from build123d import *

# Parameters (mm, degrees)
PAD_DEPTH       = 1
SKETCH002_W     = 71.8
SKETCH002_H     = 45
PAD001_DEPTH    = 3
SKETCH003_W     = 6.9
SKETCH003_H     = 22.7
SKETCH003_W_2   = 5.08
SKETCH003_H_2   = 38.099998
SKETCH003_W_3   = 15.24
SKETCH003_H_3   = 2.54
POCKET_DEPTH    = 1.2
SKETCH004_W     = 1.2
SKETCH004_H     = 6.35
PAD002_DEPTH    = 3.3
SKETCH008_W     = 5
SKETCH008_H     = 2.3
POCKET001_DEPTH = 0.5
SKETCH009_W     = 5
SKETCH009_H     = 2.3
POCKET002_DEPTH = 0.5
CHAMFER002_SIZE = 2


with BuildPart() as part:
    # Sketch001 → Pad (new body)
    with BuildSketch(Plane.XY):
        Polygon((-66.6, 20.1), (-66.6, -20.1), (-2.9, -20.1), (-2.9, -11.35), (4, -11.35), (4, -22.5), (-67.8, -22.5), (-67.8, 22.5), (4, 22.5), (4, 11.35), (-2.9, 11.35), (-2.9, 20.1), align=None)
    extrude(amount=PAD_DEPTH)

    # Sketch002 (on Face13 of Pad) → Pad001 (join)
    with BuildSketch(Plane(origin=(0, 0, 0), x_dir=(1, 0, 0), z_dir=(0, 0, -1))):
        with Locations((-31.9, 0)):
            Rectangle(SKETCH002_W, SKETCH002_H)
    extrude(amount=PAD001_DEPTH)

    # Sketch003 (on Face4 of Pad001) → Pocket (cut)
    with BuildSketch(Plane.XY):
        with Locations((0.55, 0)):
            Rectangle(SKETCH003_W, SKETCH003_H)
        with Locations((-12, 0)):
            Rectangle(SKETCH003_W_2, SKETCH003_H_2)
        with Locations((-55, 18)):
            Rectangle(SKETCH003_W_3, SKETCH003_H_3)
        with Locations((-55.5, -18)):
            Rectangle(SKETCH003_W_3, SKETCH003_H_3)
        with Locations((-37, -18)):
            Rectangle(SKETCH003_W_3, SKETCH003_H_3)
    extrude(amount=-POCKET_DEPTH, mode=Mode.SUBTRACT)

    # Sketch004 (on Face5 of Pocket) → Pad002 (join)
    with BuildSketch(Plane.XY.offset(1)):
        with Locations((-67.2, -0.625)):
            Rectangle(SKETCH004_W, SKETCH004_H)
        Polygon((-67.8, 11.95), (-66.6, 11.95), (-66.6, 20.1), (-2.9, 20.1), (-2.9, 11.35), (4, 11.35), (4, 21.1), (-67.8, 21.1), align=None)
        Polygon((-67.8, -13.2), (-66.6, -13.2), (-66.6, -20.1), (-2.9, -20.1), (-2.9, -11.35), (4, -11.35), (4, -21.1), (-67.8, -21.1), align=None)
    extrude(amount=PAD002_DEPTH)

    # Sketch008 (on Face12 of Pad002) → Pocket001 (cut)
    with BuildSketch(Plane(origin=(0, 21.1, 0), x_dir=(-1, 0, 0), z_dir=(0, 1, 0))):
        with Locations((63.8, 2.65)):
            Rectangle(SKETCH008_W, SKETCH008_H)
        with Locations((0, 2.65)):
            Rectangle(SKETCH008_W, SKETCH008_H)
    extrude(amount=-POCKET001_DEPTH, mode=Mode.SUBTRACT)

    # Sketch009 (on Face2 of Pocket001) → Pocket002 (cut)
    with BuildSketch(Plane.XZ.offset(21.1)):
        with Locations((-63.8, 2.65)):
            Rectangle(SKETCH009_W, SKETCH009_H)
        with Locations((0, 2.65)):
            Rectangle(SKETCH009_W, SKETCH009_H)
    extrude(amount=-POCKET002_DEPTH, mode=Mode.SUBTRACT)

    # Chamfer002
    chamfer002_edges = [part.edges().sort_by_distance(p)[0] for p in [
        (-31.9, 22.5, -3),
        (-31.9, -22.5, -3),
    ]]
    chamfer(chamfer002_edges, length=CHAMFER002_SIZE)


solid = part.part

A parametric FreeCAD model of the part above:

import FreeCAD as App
import Part
import Sketcher


def edges_at(feature, points):
    """Names of the edges that pass closest to the given points."""
    edges = feature.Shape.Edges
    near = lambda p: min(range(len(edges)), key=lambda i: edges[i].distToShape(Part.Vertex(*p))[0])
    return sorted({f"Edge{near(p) + 1}" for p in points})


def add_polygon(sketch, points):
    """Adds a closed chain of lines whose ends are joined by coincident constraints."""
    first, n = sketch.GeometryCount, len(points)
    for a, b in zip(points, points[1:] + points[:1]):
        sketch.addGeometry(Part.LineSegment(App.Vector(*a, 0), App.Vector(*b, 0)), False)
    for i in range(n):
        sketch.addConstraint(Sketcher.Constraint("Coincident", first + i, 2, first + (i + 1) % n, 1))

doc = App.newDocument("Part")
body = doc.addObject("PartDesign::Body", "Body")

# Sketch on XY plane
sketch1 = doc.addObject("Sketcher::SketchObject", "Sketch")
body.addObject(sketch1)
sketch1.AttachmentSupport = (doc.XY_Plane, [""])
sketch1.MapMode = "FlatFace"
add_polygon(sketch1, [(-66.6, -20.1), (-66.6, 20.1), (-2.9, 20.1), (-2.9, 11.35), (4, 11.35), (4, 22.5), (-67.8, 22.5), (-67.8, -22.5), (4, -22.5), (4, -11.35), (-2.9, -11.35), (-2.9, -20.1)])  # lines 0-11
sketch1.addConstraint([
    Sketcher.Constraint("Vertical", 0),
    Sketcher.Constraint("Horizontal", 1),
    Sketcher.Constraint("Vertical", 2),
    Sketcher.Constraint("Horizontal", 3),
    Sketcher.Constraint("Vertical", 4),
    Sketcher.Constraint("Horizontal", 5),
    Sketcher.Constraint("Vertical", 6),
    Sketcher.Constraint("Horizontal", 7),
    Sketcher.Constraint("Vertical", 8),
    Sketcher.Constraint("Horizontal", 9),
    Sketcher.Constraint("Vertical", 10),
    Sketcher.Constraint("Horizontal", 11),
    Sketcher.Constraint("Symmetric", 4, 2, 7, 2, -1),
    Sketcher.Constraint("Symmetric", 2, 2, 9, 2, -1),
    Sketcher.Constraint("Equal", 2, 10),
    Sketcher.Constraint("DistanceY", 6, 2, 6, 1, 45.0),
    Sketcher.Constraint("DistanceX", 1, 1, 1, 2, 63.7),
    Sketcher.Constraint("DistanceX", 3, 1, 3, 2, 6.9),
    Sketcher.Constraint("DistanceX", 5, 2, 5, 1, 71.8),
    Sketcher.Constraint("DistanceY", 0, 1, 0, 2, 40.2),
    Sketcher.Constraint("DistanceX", -1, 1, 3, 2, 4.0),
    Sketcher.Constraint("DistanceY", 2, 2, 2, 1, 8.75),
])
pad1 = doc.addObject("PartDesign::Pad", "Pad")
body.addObject(pad1)
pad1.Profile = sketch1
pad1.Length = 1

# Sketch on XY plane
sketch2 = doc.addObject("Sketcher::SketchObject", "Sketch001")
body.addObject(sketch2)
sketch2.AttachmentSupport = (doc.XY_Plane, [""])
sketch2.MapMode = "FlatFace"
add_polygon(sketch2, [(-67.8, -22.5), (-67.8, 22.5), (4, 22.5), (4, -22.5)])  # lines 0-3
sketch2.addConstraint([
    Sketcher.Constraint("Vertical", 0),
    Sketcher.Constraint("Horizontal", 1),
    Sketcher.Constraint("Vertical", 2),
    Sketcher.Constraint("Horizontal", 3),
    Sketcher.Constraint("DistanceY", 0, 1, 0, 2, 45.0),
    Sketcher.Constraint("DistanceX", 1, 1, 1, 2, 71.8),
    Sketcher.Constraint("DistanceX", -1, 1, 1, 2, 4.0),
    Sketcher.Constraint("DistanceY", -1, 1, 0, 2, 22.5),
])
pad2 = doc.addObject("PartDesign::Pad", "Pad001")
body.addObject(pad2)
pad2.Profile = sketch2
pad2.Length = 3
pad2.Reversed = True

# Sketch on XY plane
sketch3 = doc.addObject("Sketcher::SketchObject", "Sketch002")
body.addObject(sketch3)
sketch3.AttachmentSupport = (doc.XY_Plane, [""])
sketch3.MapMode = "FlatFace"
add_polygon(sketch3, [(-2.9, 11.35), (-2.9, -11.35), (4, -11.35), (4, 11.35)])  # lines 0-3
add_polygon(sketch3, [(-14.54, 19.049999), (-14.54, -19.049999), (-9.46, -19.049999), (-9.46, 19.049999)])  # lines 4-7
add_polygon(sketch3, [(-62.62, 19.27), (-62.62, 16.73), (-47.38, 16.73), (-47.38, 19.27)])  # lines 8-11
add_polygon(sketch3, [(-63.12, -16.73), (-63.12, -19.27), (-47.88, -19.27), (-47.88, -16.73)])  # lines 12-15
add_polygon(sketch3, [(-44.62, -16.73), (-44.62, -19.27), (-29.38, -19.27), (-29.38, -16.73)])  # lines 16-19
sketch3.addConstraint([
    Sketcher.Constraint("Vertical", 0),
    Sketcher.Constraint("Horizontal", 1),
    Sketcher.Constraint("Vertical", 2),
    Sketcher.Constraint("Horizontal", 3),
    Sketcher.Constraint("Vertical", 4),
    Sketcher.Constraint("Horizontal", 5),
    Sketcher.Constraint("Vertical", 6),
    Sketcher.Constraint("Horizontal", 7),
    Sketcher.Constraint("Vertical", 8),
    Sketcher.Constraint("Horizontal", 9),
    Sketcher.Constraint("Vertical", 10),
    Sketcher.Constraint("Horizontal", 11),
    Sketcher.Constraint("Vertical", 12),
    Sketcher.Constraint("Horizontal", 13),
    Sketcher.Constraint("Vertical", 14),
    Sketcher.Constraint("Horizontal", 15),
    Sketcher.Constraint("Vertical", 16),
    Sketcher.Constraint("Horizontal", 17),
    Sketcher.Constraint("Vertical", 18),
    Sketcher.Constraint("Horizontal", 19),
    Sketcher.Constraint("Horizontal", 13, 2, 16, 2),
    Sketcher.Constraint("Horizontal", 15, 2, 18, 2),
    Sketcher.Constraint("Equal", 11, 13),
    Sketcher.Constraint("Equal", 15, 17),
    Sketcher.Constraint("Equal", 10, 12),
    Sketcher.Constraint("DistanceX", 1, 1, 1, 2, 6.9),
    Sketcher.Constraint("DistanceY", 0, 2, 0, 1, 22.7),
    Sketcher.Constraint("DistanceX", -1, 1, 1, 2, 4.0),
    Sketcher.Constraint("DistanceY", 12, 2, 8, 2, 36.0),
    Sketcher.Constraint("DistanceX", 5, 1, 5, 2, 5.08),
    Sketcher.Constraint("DistanceX", 9, 1, 9, 2, 15.24),
    Sketcher.Constraint("DistanceY", 8, 2, 8, 1, 2.54),
    Sketcher.Constraint("DistanceY", 4, 2, 0, 2, 7.699999),
    Sketcher.Constraint("DistanceY", 3, 2, 6, 2, 7.699999),
    Sketcher.Constraint("DistanceX", 12, 2, 8, 2, 0.5),
    Sketcher.Constraint("DistanceX", 12, 2, 16, 2, 18.5),
    Sketcher.Constraint("DistanceY", 0, 2, -1, 1, 11.35),
    Sketcher.Constraint("DistanceX", 4, 2, -1, 1, 14.54),
    Sketcher.Constraint("DistanceX", 8, 2, -1, 1, 62.62),
    Sketcher.Constraint("DistanceY", -1, 1, 8, 2, 16.73),
])
pocket1 = doc.addObject("PartDesign::Pocket", "Pocket")
body.addObject(pocket1)
pocket1.Profile = sketch3
pocket1.Length = 1.2

# Sketch on XY plane
sketch4 = doc.addObject("Sketcher::SketchObject", "Sketch003")
body.addObject(sketch4)
sketch4.AttachmentSupport = (doc.XY_Plane, [""])
sketch4.MapMode = "FlatFace"
sketch4.AttachmentOffset = App.Placement(App.Vector(0, 0, 1), App.Rotation())
add_polygon(sketch4, [(-67.8, 2.55), (-67.8, -3.8), (-66.6, -3.8), (-66.6, 2.55)])  # lines 0-3
add_polygon(sketch4, [(-67.8, 11.95), (-66.6, 11.95), (-66.6, 20.1), (-2.9, 20.1), (-2.9, 11.35), (4, 11.35), (4, 21.1), (-67.8, 21.1)])  # lines 4-11
add_polygon(sketch4, [(-66.6, -13.2), (-67.8, -13.2), (-67.8, -21.1), (4, -21.1), (4, -11.35), (-2.9, -11.35), (-2.9, -20.1), (-66.6, -20.1)])  # lines 12-19
sketch4.addConstraint([
    Sketcher.Constraint("Vertical", 0),
    Sketcher.Constraint("Horizontal", 1),
    Sketcher.Constraint("Vertical", 2),
    Sketcher.Constraint("Horizontal", 3),
    Sketcher.Constraint("Horizontal", 4),
    Sketcher.Constraint("Vertical", 5),
    Sketcher.Constraint("Horizontal", 6),
    Sketcher.Constraint("Vertical", 7),
    Sketcher.Constraint("Horizontal", 8),
    Sketcher.Constraint("Vertical", 9),
    Sketcher.Constraint("Horizontal", 10),
    Sketcher.Constraint("Vertical", 11),
    Sketcher.Constraint("Horizontal", 12),
    Sketcher.Constraint("Vertical", 13),
    Sketcher.Constraint("Horizontal", 14),
    Sketcher.Constraint("Vertical", 15),
    Sketcher.Constraint("Horizontal", 16),
    Sketcher.Constraint("Vertical", 17),
    Sketcher.Constraint("Horizontal", 18),
    Sketcher.Constraint("Vertical", 19),
    Sketcher.Constraint("Symmetric", 10, 2, 13, 2, -1),
    Sketcher.Constraint("Symmetric", 8, 2, 15, 2, -1),
    Sketcher.Constraint("Symmetric", 6, 2, 17, 2, -1),
    Sketcher.Constraint("Vertical", 2, 2, 4, 2),
    Sketcher.Constraint("Vertical", 3, 2, 10, 2),
    Sketcher.Constraint("Vertical", 5, 2, 18, 2),
    Sketcher.Constraint("Equal", 16, 19),
    Sketcher.Constraint("DistanceX", 1, 1, 1, 2, 1.2),
    Sketcher.Constraint("DistanceX", 6, 1, 6, 2, 63.7),
    Sketcher.Constraint("DistanceX", 8, 1, 8, 2, 6.9),
    Sketcher.Constraint("DistanceY", 13, 2, 13, 1, 7.9),
    Sketcher.Constraint("DistanceX", -1, 1, 8, 2, 4.0),
    Sketcher.Constraint("DistanceY", 0, 2, 0, 1, 6.35),
    Sketcher.Constraint("DistanceY", 5, 1, 5, 2, 8.15),
    Sketcher.Constraint("DistanceY", 7, 2, 7, 1, 8.75),
    Sketcher.Constraint("DistanceY", 0, 2, -1, 1, 3.8),
    Sketcher.Constraint("DistanceY", -1, 1, 5, 2, 20.1),
])
pad3 = doc.addObject("PartDesign::Pad", "Pad002")
body.addObject(pad3)
pad3.Profile = sketch4
pad3.Length = 3.3

# Sketch on XZ plane
sketch5 = doc.addObject("Sketcher::SketchObject", "Sketch004")
body.addObject(sketch5)
sketch5.AttachmentSupport = (doc.XZ_Plane, [""])
sketch5.MapMode = "FlatFace"
sketch5.AttachmentOffset = App.Placement(App.Vector(0, 0, -21.1), App.Rotation())
add_polygon(sketch5, [(-61.3, 3.8), (-61.3, 1.5), (-66.3, 1.5), (-66.3, 3.8)])  # lines 0-3
add_polygon(sketch5, [(2.5, 3.8), (2.5, 1.5), (-2.5, 1.5), (-2.5, 3.8)])  # lines 4-7
sketch5.addConstraint([
    Sketcher.Constraint("Vertical", 0),
    Sketcher.Constraint("Horizontal", 1),
    Sketcher.Constraint("Vertical", 2),
    Sketcher.Constraint("Horizontal", 3),
    Sketcher.Constraint("Vertical", 4),
    Sketcher.Constraint("Horizontal", 5),
    Sketcher.Constraint("Vertical", 6),
    Sketcher.Constraint("Horizontal", 7),
    Sketcher.Constraint("Horizontal", 1, 2, 4, 2),
    Sketcher.Constraint("Horizontal", 3, 2, 6, 2),
    Sketcher.Constraint("Equal", 3, 5),
    Sketcher.Constraint("DistanceX", 1, 2, 1, 1, 5.0),
    Sketcher.Constraint("DistanceY", 0, 2, 0, 1, 2.3),
    Sketcher.Constraint("DistanceX", 0, 2, -1, 1, 61.3),
    Sketcher.Constraint("DistanceY", -1, 1, 0, 2, 1.5),
    Sketcher.Constraint("DistanceX", -1, 1, 4, 2, 2.5),
])
pocket2 = doc.addObject("PartDesign::Pocket", "Pocket001")
body.addObject(pocket2)
pocket2.Profile = sketch5
pocket2.Length = 0.5
pocket2.Reversed = True

# Sketch on XZ plane
sketch6 = doc.addObject("Sketcher::SketchObject", "Sketch005")
body.addObject(sketch6)
sketch6.AttachmentSupport = (doc.XZ_Plane, [""])
sketch6.MapMode = "FlatFace"
sketch6.AttachmentOffset = App.Placement(App.Vector(0, 0, 21.1), App.Rotation())
add_polygon(sketch6, [(-66.3, 3.8), (-66.3, 1.5), (-61.3, 1.5), (-61.3, 3.8)])  # lines 0-3
add_polygon(sketch6, [(-2.5, 3.8), (-2.5, 1.5), (2.5, 1.5), (2.5, 3.8)])  # lines 4-7
sketch6.addConstraint([
    Sketcher.Constraint("Vertical", 0),
    Sketcher.Constraint("Horizontal", 1),
    Sketcher.Constraint("Vertical", 2),
    Sketcher.Constraint("Horizontal", 3),
    Sketcher.Constraint("Vertical", 4),
    Sketcher.Constraint("Horizontal", 5),
    Sketcher.Constraint("Vertical", 6),
    Sketcher.Constraint("Horizontal", 7),
    Sketcher.Constraint("Horizontal", 1, 2, 4, 2),
    Sketcher.Constraint("Horizontal", 3, 2, 6, 2),
    Sketcher.Constraint("Equal", 3, 5),
    Sketcher.Constraint("DistanceX", 1, 1, 1, 2, 5.0),
    Sketcher.Constraint("DistanceY", 0, 2, 0, 1, 2.3),
    Sketcher.Constraint("DistanceX", 0, 2, -1, 1, 66.3),
    Sketcher.Constraint("DistanceY", -1, 1, 0, 2, 1.5),
    Sketcher.Constraint("DistanceX", 4, 2, -1, 1, 2.5),
])
pocket3 = doc.addObject("PartDesign::Pocket", "Pocket002")
body.addObject(pocket3)
pocket3.Profile = sketch6
pocket3.Length = 0.5
doc.recompute()

chamfer = doc.addObject("PartDesign::Chamfer", "Chamfer")
body.addObject(chamfer)
chamfer.Base = (pocket3, edges_at(pocket3, [(-31.9, 22.5, -3), (-31.9, -22.5, -3)]))
chamfer.Size = 2

doc.recompute()
